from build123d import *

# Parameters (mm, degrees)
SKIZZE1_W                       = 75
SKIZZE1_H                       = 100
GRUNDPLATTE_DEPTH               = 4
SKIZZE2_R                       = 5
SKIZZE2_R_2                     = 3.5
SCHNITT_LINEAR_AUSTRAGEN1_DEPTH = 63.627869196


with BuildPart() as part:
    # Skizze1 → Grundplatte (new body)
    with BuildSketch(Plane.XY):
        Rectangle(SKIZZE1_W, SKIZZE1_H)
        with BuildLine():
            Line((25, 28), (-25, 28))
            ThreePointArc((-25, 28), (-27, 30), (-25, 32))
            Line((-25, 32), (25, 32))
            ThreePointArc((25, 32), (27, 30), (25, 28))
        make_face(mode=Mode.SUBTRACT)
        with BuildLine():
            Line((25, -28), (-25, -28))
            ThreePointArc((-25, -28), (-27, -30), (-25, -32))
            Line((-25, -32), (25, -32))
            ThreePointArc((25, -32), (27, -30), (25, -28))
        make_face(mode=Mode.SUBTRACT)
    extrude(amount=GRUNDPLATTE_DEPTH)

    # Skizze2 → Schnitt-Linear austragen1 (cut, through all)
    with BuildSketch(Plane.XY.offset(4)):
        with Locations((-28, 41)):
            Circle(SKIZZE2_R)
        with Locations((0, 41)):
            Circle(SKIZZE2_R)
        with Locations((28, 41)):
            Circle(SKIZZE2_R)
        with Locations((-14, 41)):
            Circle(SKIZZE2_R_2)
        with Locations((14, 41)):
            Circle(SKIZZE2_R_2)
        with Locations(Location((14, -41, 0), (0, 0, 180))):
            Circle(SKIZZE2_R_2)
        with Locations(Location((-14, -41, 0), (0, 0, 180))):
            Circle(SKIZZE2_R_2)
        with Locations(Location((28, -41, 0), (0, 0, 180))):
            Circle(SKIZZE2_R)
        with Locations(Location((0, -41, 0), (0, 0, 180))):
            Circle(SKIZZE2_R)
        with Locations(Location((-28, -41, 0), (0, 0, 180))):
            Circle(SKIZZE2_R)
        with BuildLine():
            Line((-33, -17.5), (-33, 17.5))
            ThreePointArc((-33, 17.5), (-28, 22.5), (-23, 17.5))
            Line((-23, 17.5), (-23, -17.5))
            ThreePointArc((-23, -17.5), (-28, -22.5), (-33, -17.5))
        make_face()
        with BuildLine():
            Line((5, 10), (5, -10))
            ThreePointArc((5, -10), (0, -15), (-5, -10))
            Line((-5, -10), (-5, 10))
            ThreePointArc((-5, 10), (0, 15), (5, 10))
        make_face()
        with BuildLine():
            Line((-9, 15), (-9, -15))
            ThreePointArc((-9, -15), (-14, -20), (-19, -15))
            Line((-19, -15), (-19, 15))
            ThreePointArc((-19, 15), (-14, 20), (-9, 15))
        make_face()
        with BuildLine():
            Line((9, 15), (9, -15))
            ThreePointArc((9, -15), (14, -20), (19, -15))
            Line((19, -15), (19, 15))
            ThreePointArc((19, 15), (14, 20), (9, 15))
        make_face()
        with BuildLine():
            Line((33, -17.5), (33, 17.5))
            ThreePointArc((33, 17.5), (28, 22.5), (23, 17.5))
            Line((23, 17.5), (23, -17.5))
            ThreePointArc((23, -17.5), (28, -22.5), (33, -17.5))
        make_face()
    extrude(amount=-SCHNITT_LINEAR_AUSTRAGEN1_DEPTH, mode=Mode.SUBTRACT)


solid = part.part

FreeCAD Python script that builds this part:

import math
import FreeCAD as App
import Part
import Sketcher

V = App.Vector
Q = App.Units.Quantity


def add_polygon(sketch, points):
    """Adds a closed chain of lines whose ends are joined by coincident constraints."""
    first, n = sketch.GeometryCount, len(points)
    for a, b in zip(points, points[1:] + points[:1]):
        sketch.addGeometry(Part.LineSegment(App.Vector(*a, 0), App.Vector(*b, 0)), False)
    for i in range(n):
        sketch.addConstraint(Sketcher.Constraint("Coincident", first + i, 2, first + (i + 1) % n, 1))

doc = App.newDocument("Part")
body = doc.addObject("PartDesign::Body", "Body")

sketch1 = body.newObject("Sketcher::SketchObject", "Sketch")
sketch1.AttachmentSupport = (doc.getObject("XY_Plane"), [""])
sketch1.MapMode = "FlatFace"
add_polygon(sketch1, [(-37.5, 50), (-37.5, -50), (37.5, -50), (37.5, 50)])
sketch1.addGeometry(Part.LineSegment(V(-25, -28, 0), V(25, -28, 0)), False)
sketch1.addGeometry(Part.ArcOfCircle(Part.Circle(V(25, -30, 0), V(0, 0, 1), 2), math.radians(-90), math.radians(90)), False)
sketch1.addGeometry(Part.LineSegment(V(25, -32, 0), V(-25, -32, 0)), False)
sketch1.addGeometry(Part.ArcOfCircle(Part.Circle(V(-25, -30, 0), V(0, 0, 1), 2), math.radians(90), math.radians(270)), False)
sketch1.addGeometry(Part.ArcOfCircle(Part.Circle(V(25, 30, 0), V(0, 0, 1), 2), math.radians(-90), math.radians(90)), False)
sketch1.addGeometry(Part.LineSegment(V(25, 28, 0), V(-25, 28, 0)), False)
sketch1.addGeometry(Part.ArcOfCircle(Part.Circle(V(-25, 30, 0), V(0, 0, 1), 2), math.radians(90), math.radians(270)), False)
sketch1.addGeometry(Part.LineSegment(V(-25, 32, 0), V(25, 32, 0)), False)
sketch1.addConstraint([
    Sketcher.Constraint("Tangent", 4, 2, 5, 2),
    Sketcher.Constraint("Tangent", 5, 1, 6, 1),
    Sketcher.Constraint("Tangent", 6, 2, 7, 2),
    Sketcher.Constraint("Tangent", 7, 1, 4, 1),
    Sketcher.Constraint("Tangent", 8, 1, 9, 1),
    Sketcher.Constraint("Tangent", 9, 2, 10, 2),
    Sketcher.Constraint("Tangent", 10, 1, 11, 1),
    Sketcher.Constraint("Tangent", 11, 2, 8, 2),
    Sketcher.Constraint("Vertical", 0),
    Sketcher.Constraint("Horizontal", 1),
    Sketcher.Constraint("Vertical", 2),
    Sketcher.Constraint("Horizontal", 3),
    Sketcher.Constraint("Horizontal", 4),
    Sketcher.Constraint("Horizontal", 6),
    Sketcher.Constraint("Horizontal", 9),
    Sketcher.Constraint("Horizontal", 11),
    Sketcher.Constraint("Equal", 7, 8),
    Sketcher.Constraint("Symmetric", 7, 3, 8, 3, -1, 1),
    Sketcher.Constraint("Symmetric", 0, 2, 2, 2, -1, 1),
    Sketcher.Constraint("Vertical", 5, 3, 8, 3),
    Sketcher.Constraint("Vertical", 7, 3, 10, 3),
    Sketcher.Constraint("Radius", 5, Q("2 mm")),
    Sketcher.Constraint("DistanceX", 1, 1, 1, 2, Q("75 mm")),
    Sketcher.Constraint("DistanceX", 4, 1, 4, 2, Q("50 mm")),
    Sketcher.Constraint("DistanceY", 0, 2, 0, 1, Q("100 mm")),
    Sketcher.Constraint("DistanceY", 5, 3, -1, 1, Q("30 mm")),
])
pad1 = body.newObject("PartDesign::Pad", "Pad")
pad1.Profile = sketch1
pad1.Length = 4

sketch2 = body.newObject("Sketcher::SketchObject", "Sketch001")
sketch2.AttachmentSupport = (doc.getObject("XY_Plane"), [""])
sketch2.MapMode = "FlatFace"
sketch2.AttachmentOffset = App.Placement(V(0, 0, 4), App.Rotation())
sketch2.addGeometry([
    Part.Circle(V(-28, 41, 0), V(0, 0, 1), 5),
    Part.Circle(V(0, 41, 0), V(0, 0, 1), 5),
    Part.Circle(V(28, 41, 0), V(0, 0, 1), 5),
    Part.Circle(V(-14, 41, 0), V(0, 0, 1), 3.5),
    Part.Circle(V(14, 41, 0), V(0, 0, 1), 3.5),
    Part.Circle(V(14, -41, 0), V(0, 0, 1), 3.5),
    Part.Circle(V(-14, -41, 0), V(0, 0, 1), 3.5),
    Part.Circle(V(28, -41, 0), V(0, 0, 1), 5),
    Part.Circle(V(0, -41, 0), V(0, 0, 1), 5),
    Part.Circle(V(-28, -41, 0), V(0, 0, 1), 5),
    Part.LineSegment(V(-33, 17.5, 0), V(-33, -17.5, 0)),
    Part.ArcOfCircle(Part.Circle(V(-28, -17.5, 0), V(0, 0, 1), 5), math.radians(180), math.radians(360)),
    Part.LineSegment(V(-23, -17.5, 0), V(-23, 17.5, 0)),
    Part.ArcOfCircle(Part.Circle(V(-28, 17.5, 0), V(0, 0, 1), 5), math.radians(0), math.radians(180)),
    Part.LineSegment(V(5, -10, 0), V(5, 10, 0)),
    Part.ArcOfCircle(Part.Circle(V(0, 10, 0), V(0, 0, 1), 5), math.radians(0), math.radians(180)),
    Part.LineSegment(V(-5, 10, 0), V(-5, -10, 0)),
    Part.ArcOfCircle(Part.Circle(V(0, -10, 0), V(0, 0, 1), 5), math.radians(180), math.radians(360)),
    Part.LineSegment(V(-9, -15, 0), V(-9, 15, 0)),
    Part.ArcOfCircle(Part.Circle(V(-14, 15, 0), V(0, 0, 1), 5), math.radians(0), math.radians(180)),
    Part.LineSegment(V(-19, 15, 0), V(-19, -15, 0)),
    Part.ArcOfCircle(Part.Circle(V(-14, -15, 0), V(0, 0, 1), 5), math.radians(180), math.radians(360)),
    Part.LineSegment(V(9, 15, 0), V(9, -15, 0)),
    Part.ArcOfCircle(Part.Circle(V(14, -15, 0), V(0, 0, 1), 5), math.radians(180), math.radians(360)),
    Part.LineSegment(V(19, -15, 0), V(19, 15, 0)),
    Part.ArcOfCircle(Part.Circle(V(14, 15, 0), V(0, 0, 1), 5), math.radians(0), math.radians(180)),
    Part.LineSegment(V(33, -17.5, 0), V(33, 17.5, 0)),
    Part.ArcOfCircle(Part.Circle(V(28, 17.5, 0), V(0, 0, 1), 5), math.radians(0), math.radians(180)),
    Part.LineSegment(V(23, 17.5, 0), V(23, -17.5, 0)),
    Part.ArcOfCircle(Part.Circle(V(28, -17.5, 0), V(0, 0, 1), 5), math.radians(180), math.radians(360)),
], False)
sketch2.addConstraint([
    Sketcher.Constraint("Tangent", 10, 2, 11, 1),
    Sketcher.Constraint("Tangent", 11, 2, 12, 1),
    Sketcher.Constraint("Tangent", 12, 2, 13, 1),
    Sketcher.Constraint("Tangent", 13, 2, 10, 1),
    Sketcher.Constraint("Tangent", 14, 2, 15, 1),
    Sketcher.Constraint("Tangent", 15, 2, 16, 1),
    Sketcher.Constraint("Tangent", 16, 2, 17, 1),
    Sketcher.Constraint("Tangent", 17, 2, 14, 1),
    Sketcher.Constraint("Tangent", 18, 2, 19, 1),
    Sketcher.Constraint("Tangent", 19, 2, 20, 1),
    Sketcher.Constraint("Tangent", 20, 2, 21, 1),
    Sketcher.Constraint("Tangent", 21, 2, 18, 1),
    Sketcher.Constraint("Tangent", 22, 2, 23, 1),
    Sketcher.Constraint("Tangent", 23, 2, 24, 1),
    Sketcher.Constraint("Tangent", 24, 2, 25, 1),
    Sketcher.Constraint("Tangent", 25, 2, 22, 1),
    Sketcher.Constraint("Tangent", 26, 2, 27, 1),
    Sketcher.Constraint("Tangent", 27, 2, 28, 1),
    Sketcher.Constraint("Tangent", 28, 2, 29, 1),
    Sketcher.Constraint("Tangent", 29, 2, 26, 1),
    Sketcher.Constraint("Vertical", 10),
    Sketcher.Constraint("Vertical", 12),
    Sketcher.Constraint("Vertical", 14),
    Sketcher.Constraint("Vertical", 16),
    Sketcher.Constraint("Vertical", 18),
    Sketcher.Constraint("Vertical", 20),
    Sketcher.Constraint("Vertical", 22),
    Sketcher.Constraint("Vertical", 24),
    Sketcher.Constraint("Vertical", 26),
    Sketcher.Constraint("Vertical", 28),
    Sketcher.Constraint("Equal", 0, 1),
    Sketcher.Constraint("Equal", 1, 2),
    Sketcher.Constraint("Equal", 3, 4),
    Sketcher.Constraint("Equal", 4, 5),
    Sketcher.Constraint("Equal", 5, 6),
    Sketcher.Constraint("Equal", 2, 7),
    Sketcher.Constraint("Equal", 7, 8),
    Sketcher.Constraint("Equal", 8, 9),
    Sketcher.Constraint("Equal", 9, 11),
    Sketcher.Constraint("Equal", 13, 15),
    Sketcher.Constraint("Equal", 17, 19),
    Sketcher.Constraint("Equal", 21, 23),
    Sketcher.Constraint("Equal", 25, 27),
    Sketcher.Constraint("Symmetric", 3, 3, 5, 3, -1, 1),
    Sketcher.Constraint("Symmetric", 4, 3, 6, 3, -1, 1),
    Sketcher.Constraint("Symmetric", 0, 3, 7, 3, -1, 1),
    Sketcher.Constraint("Symmetric", 1, 3, 8, 3, -1, 1),
    Sketcher.Constraint("Symmetric", 2, 3, 9, 3, -1, 1),
    Sketcher.Constraint("Symmetric", 15, 3, 17, 3, -1, 1),
    Sketcher.Constraint("Symmetric", 19, 3, 23, 3, -1, 1),
    Sketcher.Constraint("Symmetric", 11, 3, 27, 3, -1, 1),
    Sketcher.Constraint("Symmetric", 0, 3, 2, 3, -2),
    Sketcher.Constraint("Symmetric", 3, 3, 4, 3, -2),
    Sketcher.Constraint("PointOnObject", 1, 3, -2),
    Sketcher.Constraint("Horizontal", 0, 3, 1, 3),
    Sketcher.Constraint("Horizontal", 2, 3, 3, 3),
    Sketcher.Constraint("Horizontal", 21, 3, 23, 3),
    Sketcher.Constraint("Horizontal", 19, 3, 25, 3),
    Sketcher.Constraint("Horizontal", 13, 3, 27, 3),
    Sketcher.Constraint("Horizontal", 11, 3, 29, 3),
    Sketcher.Constraint("Vertical", 9, 3, 11, 3),
    Sketcher.Constraint("Vertical", 6, 3, 19, 3),
    Sketcher.Constraint("Diameter", 0, Q("10 mm")),
    Sketcher.Constraint("Diameter", 3, Q("7 mm")),
    Sketcher.Constraint("DistanceY", 10, 2, 10, 1, Q("35 mm")),
    Sketcher.Constraint("DistanceY", 14, 1, 14, 2, Q("20 mm")),
    Sketcher.Constraint("DistanceY", 18, 1, 18, 2, Q("30 mm")),
    Sketcher.Constraint("DistanceX", 0, 3, -1, 1, Q("28 mm")),
    Sketcher.Constraint("DistanceY", -1, 1, 0, 3, Q("41 mm")),
    Sketcher.Constraint("DistanceX", 3, 3, -1, 1, Q("14 mm")),
])
pocket1 = body.newObject("PartDesign::Pocket", "Pocket")
pocket1.Profile = sketch2
pocket1.Type = "ThroughAll"

doc.recompute()
